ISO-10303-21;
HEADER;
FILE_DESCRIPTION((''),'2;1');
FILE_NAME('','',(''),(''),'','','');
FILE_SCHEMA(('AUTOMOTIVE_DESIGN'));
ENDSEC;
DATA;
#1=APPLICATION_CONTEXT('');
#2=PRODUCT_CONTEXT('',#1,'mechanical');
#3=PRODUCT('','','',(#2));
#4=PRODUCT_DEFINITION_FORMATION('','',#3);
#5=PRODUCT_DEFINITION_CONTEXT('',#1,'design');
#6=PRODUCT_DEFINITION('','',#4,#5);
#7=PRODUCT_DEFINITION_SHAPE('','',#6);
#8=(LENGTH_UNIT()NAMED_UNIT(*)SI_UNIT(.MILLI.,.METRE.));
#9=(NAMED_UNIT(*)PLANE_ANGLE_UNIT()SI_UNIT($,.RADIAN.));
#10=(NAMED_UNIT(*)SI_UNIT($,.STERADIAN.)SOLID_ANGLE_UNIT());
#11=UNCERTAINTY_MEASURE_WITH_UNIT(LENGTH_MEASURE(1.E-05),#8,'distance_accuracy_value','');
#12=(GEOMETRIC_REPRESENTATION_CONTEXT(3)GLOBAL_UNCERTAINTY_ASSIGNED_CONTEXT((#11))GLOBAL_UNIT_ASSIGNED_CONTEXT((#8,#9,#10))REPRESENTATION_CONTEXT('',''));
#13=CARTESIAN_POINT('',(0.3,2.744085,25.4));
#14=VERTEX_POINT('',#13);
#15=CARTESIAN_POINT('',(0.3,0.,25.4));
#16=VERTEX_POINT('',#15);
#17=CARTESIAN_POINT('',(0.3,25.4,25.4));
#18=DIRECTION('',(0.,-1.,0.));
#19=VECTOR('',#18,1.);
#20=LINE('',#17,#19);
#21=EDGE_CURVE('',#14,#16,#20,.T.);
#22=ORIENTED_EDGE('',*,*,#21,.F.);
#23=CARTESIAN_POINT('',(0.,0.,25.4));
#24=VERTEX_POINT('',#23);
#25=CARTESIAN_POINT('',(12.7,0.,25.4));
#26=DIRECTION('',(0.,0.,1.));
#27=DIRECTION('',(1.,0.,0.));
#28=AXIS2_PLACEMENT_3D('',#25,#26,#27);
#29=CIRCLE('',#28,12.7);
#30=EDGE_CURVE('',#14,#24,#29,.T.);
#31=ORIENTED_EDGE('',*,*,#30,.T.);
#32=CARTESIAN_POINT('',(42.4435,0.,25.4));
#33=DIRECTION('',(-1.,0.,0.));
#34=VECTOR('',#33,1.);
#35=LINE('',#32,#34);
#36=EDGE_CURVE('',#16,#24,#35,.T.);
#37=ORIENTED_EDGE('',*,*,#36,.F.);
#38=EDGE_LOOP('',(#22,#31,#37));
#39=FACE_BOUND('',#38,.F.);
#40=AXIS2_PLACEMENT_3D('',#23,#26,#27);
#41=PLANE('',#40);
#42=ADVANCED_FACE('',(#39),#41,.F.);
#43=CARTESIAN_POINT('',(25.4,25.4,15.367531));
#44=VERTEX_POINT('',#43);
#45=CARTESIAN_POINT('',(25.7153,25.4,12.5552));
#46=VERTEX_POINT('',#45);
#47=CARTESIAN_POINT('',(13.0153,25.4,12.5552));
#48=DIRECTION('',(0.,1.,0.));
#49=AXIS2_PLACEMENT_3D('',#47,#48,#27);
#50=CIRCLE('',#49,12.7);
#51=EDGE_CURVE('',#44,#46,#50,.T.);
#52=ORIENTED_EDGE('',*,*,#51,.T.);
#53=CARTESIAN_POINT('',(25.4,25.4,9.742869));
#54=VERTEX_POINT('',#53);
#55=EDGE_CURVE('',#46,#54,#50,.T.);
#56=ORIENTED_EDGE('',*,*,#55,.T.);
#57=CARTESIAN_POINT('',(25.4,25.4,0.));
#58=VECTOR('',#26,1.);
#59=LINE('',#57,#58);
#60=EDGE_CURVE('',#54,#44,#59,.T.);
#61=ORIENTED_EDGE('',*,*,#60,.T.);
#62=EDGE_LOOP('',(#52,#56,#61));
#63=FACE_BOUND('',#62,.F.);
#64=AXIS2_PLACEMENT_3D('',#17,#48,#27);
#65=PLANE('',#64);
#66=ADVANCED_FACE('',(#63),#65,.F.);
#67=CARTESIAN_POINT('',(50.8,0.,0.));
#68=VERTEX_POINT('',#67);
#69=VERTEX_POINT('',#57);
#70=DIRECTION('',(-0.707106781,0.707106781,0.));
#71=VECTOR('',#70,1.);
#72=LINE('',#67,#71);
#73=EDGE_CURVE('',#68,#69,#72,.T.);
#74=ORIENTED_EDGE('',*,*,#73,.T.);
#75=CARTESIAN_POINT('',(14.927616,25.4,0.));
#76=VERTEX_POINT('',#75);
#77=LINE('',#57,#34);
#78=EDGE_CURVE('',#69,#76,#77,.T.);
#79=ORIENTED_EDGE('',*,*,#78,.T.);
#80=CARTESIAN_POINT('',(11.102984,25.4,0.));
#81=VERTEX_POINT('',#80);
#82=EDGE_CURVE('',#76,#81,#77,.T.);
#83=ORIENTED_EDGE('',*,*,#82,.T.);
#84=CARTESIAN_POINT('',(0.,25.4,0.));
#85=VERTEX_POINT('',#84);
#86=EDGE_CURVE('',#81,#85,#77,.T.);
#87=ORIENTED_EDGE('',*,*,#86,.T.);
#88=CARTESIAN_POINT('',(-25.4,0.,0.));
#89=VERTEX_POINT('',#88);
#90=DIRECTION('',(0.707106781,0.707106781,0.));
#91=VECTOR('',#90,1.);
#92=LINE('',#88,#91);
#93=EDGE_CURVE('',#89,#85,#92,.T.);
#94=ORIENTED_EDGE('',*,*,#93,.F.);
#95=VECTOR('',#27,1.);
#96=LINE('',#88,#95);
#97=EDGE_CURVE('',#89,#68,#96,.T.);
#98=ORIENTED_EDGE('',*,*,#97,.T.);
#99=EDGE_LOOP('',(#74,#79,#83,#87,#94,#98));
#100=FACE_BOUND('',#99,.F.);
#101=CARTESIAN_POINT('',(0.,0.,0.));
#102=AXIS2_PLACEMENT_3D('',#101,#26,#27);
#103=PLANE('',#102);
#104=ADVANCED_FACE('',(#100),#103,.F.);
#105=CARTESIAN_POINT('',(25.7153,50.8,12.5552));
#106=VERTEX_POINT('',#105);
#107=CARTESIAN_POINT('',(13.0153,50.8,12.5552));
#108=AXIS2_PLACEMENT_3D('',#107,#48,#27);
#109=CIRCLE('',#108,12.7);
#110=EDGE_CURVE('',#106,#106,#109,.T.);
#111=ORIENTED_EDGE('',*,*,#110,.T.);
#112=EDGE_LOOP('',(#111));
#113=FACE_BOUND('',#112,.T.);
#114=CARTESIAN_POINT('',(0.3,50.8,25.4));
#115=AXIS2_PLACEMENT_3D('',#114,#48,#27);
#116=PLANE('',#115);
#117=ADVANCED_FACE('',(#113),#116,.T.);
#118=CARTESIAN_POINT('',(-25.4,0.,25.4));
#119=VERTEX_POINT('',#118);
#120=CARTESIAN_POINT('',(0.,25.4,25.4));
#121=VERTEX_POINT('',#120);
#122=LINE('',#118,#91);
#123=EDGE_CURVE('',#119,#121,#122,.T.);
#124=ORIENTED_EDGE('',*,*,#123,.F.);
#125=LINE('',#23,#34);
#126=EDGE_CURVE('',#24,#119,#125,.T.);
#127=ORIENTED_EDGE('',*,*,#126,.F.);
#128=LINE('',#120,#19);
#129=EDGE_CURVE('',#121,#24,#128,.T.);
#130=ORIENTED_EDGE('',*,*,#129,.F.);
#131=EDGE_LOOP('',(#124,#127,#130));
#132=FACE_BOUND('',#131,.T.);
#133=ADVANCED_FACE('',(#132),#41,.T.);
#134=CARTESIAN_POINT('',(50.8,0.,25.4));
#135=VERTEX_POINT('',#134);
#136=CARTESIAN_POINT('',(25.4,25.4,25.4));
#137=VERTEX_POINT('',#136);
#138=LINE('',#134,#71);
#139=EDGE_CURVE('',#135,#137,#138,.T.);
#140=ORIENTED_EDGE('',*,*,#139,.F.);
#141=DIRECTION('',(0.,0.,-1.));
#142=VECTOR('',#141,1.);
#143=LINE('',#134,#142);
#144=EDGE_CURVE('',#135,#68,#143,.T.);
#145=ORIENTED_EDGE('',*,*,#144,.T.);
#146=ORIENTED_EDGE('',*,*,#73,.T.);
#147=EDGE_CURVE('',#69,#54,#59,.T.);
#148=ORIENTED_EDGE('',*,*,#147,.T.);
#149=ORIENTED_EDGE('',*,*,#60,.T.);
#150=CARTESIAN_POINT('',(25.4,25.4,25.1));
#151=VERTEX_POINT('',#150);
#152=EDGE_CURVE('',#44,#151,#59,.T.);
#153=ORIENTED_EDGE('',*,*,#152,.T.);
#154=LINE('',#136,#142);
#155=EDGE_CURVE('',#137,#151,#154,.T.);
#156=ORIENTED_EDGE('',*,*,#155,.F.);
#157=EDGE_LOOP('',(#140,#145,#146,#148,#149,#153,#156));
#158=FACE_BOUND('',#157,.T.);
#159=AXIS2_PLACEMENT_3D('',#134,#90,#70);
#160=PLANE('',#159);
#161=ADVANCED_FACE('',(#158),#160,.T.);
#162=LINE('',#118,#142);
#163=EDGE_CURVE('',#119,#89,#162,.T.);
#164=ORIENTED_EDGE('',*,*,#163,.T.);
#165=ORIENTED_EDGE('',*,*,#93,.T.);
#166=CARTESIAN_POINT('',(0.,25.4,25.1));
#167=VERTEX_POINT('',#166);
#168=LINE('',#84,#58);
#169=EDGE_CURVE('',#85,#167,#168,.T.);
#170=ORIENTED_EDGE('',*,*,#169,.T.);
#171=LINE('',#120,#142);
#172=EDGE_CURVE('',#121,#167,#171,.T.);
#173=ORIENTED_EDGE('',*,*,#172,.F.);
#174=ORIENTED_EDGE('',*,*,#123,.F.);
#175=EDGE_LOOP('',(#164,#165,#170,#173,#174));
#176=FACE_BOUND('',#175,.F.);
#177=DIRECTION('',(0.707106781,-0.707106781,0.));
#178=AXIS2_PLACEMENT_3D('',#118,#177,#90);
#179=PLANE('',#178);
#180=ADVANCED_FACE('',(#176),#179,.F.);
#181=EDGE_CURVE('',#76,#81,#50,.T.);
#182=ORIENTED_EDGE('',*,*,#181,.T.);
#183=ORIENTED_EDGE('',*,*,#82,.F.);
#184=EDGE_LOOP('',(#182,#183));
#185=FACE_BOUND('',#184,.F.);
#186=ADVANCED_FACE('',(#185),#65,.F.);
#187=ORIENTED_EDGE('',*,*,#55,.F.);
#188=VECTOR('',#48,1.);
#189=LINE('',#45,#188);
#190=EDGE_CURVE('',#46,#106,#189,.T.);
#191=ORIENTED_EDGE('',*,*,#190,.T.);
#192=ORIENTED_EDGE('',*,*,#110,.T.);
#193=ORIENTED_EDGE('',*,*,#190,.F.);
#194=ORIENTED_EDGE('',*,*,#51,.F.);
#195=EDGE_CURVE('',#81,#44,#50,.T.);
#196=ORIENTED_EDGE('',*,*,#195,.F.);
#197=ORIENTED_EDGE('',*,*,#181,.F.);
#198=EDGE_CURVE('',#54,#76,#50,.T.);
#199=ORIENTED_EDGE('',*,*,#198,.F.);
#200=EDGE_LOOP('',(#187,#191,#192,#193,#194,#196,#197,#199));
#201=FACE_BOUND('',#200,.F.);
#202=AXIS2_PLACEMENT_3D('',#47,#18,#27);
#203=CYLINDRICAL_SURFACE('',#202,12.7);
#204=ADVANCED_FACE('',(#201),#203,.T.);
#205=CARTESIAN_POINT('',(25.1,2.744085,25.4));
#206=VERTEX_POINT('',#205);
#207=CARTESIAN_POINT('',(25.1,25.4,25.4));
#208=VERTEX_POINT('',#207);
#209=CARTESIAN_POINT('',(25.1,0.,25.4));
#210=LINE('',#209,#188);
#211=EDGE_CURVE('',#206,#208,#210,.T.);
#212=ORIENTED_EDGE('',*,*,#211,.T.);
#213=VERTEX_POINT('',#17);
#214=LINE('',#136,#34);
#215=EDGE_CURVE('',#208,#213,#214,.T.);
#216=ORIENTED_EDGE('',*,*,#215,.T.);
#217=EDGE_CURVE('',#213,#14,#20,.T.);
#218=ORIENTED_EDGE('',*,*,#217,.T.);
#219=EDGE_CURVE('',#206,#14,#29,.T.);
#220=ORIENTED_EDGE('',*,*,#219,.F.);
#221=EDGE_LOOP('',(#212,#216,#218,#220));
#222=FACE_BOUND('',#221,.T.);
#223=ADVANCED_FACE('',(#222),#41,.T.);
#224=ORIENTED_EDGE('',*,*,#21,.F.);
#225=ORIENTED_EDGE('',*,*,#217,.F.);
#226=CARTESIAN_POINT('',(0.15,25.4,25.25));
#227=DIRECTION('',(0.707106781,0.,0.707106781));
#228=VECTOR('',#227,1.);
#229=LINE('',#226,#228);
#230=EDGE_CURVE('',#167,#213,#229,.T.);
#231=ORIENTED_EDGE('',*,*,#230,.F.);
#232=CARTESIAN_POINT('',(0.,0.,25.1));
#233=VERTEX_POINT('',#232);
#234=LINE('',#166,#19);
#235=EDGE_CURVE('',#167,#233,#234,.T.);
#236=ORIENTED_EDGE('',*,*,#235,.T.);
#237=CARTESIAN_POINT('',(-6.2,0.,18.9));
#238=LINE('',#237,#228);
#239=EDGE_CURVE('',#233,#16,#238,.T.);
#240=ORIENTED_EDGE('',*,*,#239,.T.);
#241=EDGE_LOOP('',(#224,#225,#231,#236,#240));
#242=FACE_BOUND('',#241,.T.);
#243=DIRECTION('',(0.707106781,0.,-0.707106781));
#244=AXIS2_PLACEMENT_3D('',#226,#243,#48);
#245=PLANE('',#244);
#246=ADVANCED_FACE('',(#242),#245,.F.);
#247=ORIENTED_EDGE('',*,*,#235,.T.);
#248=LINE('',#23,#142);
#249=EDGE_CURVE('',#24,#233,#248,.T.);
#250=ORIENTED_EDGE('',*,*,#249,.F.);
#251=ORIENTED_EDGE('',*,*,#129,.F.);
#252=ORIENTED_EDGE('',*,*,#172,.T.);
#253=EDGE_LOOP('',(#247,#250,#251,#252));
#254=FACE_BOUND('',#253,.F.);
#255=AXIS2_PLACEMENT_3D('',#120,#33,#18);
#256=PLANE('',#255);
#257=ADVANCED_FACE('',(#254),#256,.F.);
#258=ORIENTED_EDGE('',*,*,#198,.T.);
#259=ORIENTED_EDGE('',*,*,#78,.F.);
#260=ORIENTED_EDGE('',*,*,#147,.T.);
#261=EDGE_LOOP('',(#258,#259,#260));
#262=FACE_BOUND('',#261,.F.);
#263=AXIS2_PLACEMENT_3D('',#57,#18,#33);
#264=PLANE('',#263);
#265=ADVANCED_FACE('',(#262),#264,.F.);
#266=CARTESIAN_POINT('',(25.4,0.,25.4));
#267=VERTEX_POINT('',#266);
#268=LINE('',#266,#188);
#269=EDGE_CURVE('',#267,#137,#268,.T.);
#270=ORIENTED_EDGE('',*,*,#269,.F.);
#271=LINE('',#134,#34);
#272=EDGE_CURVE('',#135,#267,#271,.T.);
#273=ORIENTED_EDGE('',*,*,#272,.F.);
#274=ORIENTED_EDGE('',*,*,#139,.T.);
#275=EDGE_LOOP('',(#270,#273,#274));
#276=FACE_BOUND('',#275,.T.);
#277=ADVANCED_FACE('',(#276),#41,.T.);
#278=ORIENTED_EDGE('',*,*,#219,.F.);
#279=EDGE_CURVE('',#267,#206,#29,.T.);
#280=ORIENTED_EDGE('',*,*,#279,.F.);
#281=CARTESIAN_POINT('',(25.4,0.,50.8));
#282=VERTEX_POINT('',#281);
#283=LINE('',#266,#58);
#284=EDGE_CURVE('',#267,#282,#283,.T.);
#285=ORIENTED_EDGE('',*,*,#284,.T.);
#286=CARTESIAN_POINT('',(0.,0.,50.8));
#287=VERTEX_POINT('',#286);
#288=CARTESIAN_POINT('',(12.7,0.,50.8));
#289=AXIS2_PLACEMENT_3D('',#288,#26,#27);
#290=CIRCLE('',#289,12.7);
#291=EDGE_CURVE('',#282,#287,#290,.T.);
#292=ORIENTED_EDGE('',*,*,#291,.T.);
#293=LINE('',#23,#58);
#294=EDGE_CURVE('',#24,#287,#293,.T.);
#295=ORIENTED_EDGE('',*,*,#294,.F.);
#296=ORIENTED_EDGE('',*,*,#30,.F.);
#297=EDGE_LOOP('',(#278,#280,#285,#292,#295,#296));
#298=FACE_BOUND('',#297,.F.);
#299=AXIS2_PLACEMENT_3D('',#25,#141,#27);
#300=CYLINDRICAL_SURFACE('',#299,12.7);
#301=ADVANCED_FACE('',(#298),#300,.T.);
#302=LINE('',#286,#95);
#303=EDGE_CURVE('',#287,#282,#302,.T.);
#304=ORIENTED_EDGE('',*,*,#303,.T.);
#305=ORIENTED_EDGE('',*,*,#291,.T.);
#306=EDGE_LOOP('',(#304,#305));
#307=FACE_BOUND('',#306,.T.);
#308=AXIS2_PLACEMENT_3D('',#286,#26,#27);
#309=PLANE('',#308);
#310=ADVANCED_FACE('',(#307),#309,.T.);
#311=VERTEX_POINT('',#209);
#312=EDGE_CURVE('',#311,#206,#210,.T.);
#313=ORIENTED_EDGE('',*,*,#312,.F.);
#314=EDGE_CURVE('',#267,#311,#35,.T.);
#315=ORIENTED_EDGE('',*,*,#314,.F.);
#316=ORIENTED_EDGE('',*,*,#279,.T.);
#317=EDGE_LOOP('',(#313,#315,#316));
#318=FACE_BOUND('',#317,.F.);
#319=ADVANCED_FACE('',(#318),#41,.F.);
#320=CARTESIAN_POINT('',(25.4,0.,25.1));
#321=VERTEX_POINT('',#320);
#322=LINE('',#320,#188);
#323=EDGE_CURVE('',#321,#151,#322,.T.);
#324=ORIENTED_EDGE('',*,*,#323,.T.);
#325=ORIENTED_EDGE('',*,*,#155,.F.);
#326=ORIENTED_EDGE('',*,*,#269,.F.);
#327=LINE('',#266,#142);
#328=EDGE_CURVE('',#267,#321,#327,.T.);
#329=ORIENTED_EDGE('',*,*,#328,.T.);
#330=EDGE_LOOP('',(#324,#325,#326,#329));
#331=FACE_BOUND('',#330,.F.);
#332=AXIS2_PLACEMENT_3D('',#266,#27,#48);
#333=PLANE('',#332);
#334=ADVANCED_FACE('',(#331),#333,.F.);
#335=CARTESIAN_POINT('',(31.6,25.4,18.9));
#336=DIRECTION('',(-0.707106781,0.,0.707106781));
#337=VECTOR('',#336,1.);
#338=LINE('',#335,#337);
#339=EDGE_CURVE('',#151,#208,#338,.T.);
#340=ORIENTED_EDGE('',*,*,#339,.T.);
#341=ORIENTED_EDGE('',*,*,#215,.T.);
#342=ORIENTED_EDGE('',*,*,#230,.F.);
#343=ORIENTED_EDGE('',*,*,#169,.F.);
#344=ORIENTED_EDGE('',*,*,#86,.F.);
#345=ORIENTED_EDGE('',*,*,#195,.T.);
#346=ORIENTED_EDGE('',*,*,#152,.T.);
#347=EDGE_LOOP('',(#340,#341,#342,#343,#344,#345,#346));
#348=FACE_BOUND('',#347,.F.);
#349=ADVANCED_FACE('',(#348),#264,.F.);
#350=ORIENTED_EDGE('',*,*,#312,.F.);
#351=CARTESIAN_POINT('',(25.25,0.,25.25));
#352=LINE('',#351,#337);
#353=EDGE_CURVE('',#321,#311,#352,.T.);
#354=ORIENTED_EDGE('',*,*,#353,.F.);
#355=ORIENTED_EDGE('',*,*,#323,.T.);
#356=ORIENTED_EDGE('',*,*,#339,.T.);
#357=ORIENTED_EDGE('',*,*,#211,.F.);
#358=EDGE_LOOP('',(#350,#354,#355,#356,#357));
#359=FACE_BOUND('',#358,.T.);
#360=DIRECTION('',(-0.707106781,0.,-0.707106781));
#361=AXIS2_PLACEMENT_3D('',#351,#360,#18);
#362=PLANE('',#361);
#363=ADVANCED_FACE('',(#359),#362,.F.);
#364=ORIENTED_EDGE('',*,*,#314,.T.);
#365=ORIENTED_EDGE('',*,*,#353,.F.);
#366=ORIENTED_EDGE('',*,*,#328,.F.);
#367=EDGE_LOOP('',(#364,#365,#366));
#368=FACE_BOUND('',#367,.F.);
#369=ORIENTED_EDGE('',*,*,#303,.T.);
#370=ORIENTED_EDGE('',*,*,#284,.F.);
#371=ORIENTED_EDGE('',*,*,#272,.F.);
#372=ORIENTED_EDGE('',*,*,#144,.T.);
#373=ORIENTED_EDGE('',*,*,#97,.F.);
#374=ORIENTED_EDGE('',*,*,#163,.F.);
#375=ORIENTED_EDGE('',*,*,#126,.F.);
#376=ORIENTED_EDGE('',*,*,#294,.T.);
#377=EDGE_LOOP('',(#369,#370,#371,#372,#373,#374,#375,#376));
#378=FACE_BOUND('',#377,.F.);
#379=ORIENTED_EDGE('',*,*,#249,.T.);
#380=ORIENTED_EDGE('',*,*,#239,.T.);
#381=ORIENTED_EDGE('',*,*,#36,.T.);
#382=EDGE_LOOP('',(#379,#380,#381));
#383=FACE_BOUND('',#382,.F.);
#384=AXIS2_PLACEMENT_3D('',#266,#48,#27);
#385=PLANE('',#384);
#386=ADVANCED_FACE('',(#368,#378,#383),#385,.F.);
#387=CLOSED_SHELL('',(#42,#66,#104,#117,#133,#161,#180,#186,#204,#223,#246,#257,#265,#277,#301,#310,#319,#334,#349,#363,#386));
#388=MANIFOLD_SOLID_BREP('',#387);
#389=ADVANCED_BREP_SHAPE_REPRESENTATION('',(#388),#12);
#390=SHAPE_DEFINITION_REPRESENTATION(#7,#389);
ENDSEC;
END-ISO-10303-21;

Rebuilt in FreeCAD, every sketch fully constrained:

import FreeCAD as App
import Part
import Sketcher
from FreeCAD import Vector
Q = App.Units.Quantity


def edges_at(feature, points):
    """Names of the edges that pass closest to the given points."""
    edges = feature.Shape.Edges
    near = lambda p: min(range(len(edges)), key=lambda i: edges[i].distToShape(Part.Vertex(*p))[0])
    return sorted({f"Edge{near(p) + 1}" for p in points})


def add_polygon(sketch, points):
    """Adds a closed chain of lines whose ends are joined by coincident constraints."""
    first, n = sketch.GeometryCount, len(points)
    for a, b in zip(points, points[1:] + points[:1]):
        sketch.addGeometry(Part.LineSegment(App.Vector(*a, 0), App.Vector(*b, 0)), False)
    for i in range(n):
        sketch.addConstraint(Sketcher.Constraint("Coincident", first + i, 2, first + (i + 1) % n, 1))

doc = App.newDocument("Part")
body = doc.addObject("PartDesign::Body", "Body")

# Sketch on XY plane
sketch1 = doc.addObject("Sketcher::SketchObject", "Sketch")
body.addObject(sketch1)
sketch1.AttachmentSupport = (doc.XY_Plane, [""])
sketch1.MapMode = "FlatFace"
add_polygon(sketch1, [(0, 25), (0, 0), (25, 0), (25, 25)])  # lines 0-3
sketch1.addConstraint([
    Sketcher.Constraint("Vertical", 0),
    Sketcher.Constraint("Horizontal", 1),
    Sketcher.Constraint("Vertical", 2),
    Sketcher.Constraint("Horizontal", 3),
    Sketcher.Constraint("Coincident", 0, 2, -1, 1),
    Sketcher.Constraint("Equal", 3, 0),
    Sketcher.Constraint("DistanceX", 1, 1, 1, 2, Q("1 in")),
])
pad1 = doc.addObject("PartDesign::Pad", "Pad")
body.addObject(pad1)
pad1.Profile = sketch1
pad1.Length = Q("1 in")
doc.recompute()

chamfer = doc.addObject("PartDesign::Chamfer", "Chamfer")
body.addObject(chamfer)
chamfer.Base = (pad1, edges_at(pad1, [(25.4, 12.7, 25.4), (0, 12.7, 25.4)]))
chamfer.Size = Q("0.011811 in")

# Sketch on XY plane
sketch2 = doc.addObject("Sketcher::SketchObject", "Sketch001")
body.addObject(sketch2)
sketch2.AttachmentSupport = (doc.XY_Plane, [""])
sketch2.MapMode = "FlatFace"
sketch2.AttachmentOffset = App.Placement(Vector(0, 0, 1 * 25.4), App.Rotation())
add_polygon(sketch2, [(-25, 0), (0, 0), (0, 25)])  # lines 0-2
sketch2.addConstraint([
    Sketcher.Constraint("Horizontal", 0),
    Sketcher.Constraint("Vertical", 1),
    Sketcher.Constraint("Coincident", 0, 2, -1, 1),
    Sketcher.Constraint("Equal", 0, 1),
    Sketcher.Constraint("DistanceX", 0, 1, 0, 2, Q("1 in")),
])
pad2 = doc.addObject("PartDesign::Pad", "Pad001")
body.addObject(pad2)
pad2.Profile = sketch2
pad2.Length = Q("1 in")
pad2.Reversed = True

# Sketch on XY plane
sketch3 = doc.addObject("Sketcher::SketchObject", "Sketch002")
body.addObject(sketch3)
sketch3.AttachmentSupport = (doc.XY_Plane, [""])
sketch3.MapMode = "FlatFace"
sketch3.AttachmentOffset = App.Placement(Vector(0, 0, 1 * 25.4), App.Rotation())
add_polygon(sketch3, [(25, 25), (25, 0), (51, 0)])  # lines 0-2
sketch3.addConstraint([
    Sketcher.Constraint("Vertical", 0),
    Sketcher.Constraint("Horizontal", 1),
    Sketcher.Constraint("PointOnObject", 0, 2, -1),
    Sketcher.Constraint("Equal", 1, 0),
    Sketcher.Constraint("DistanceX", 1, 1, 1, 2, Q("1 in")),
    Sketcher.Constraint("DistanceX", -1, 1, 0, 2, Q("1 in")),
])
pad3 = doc.addObject("PartDesign::Pad", "Pad002")
body.addObject(pad3)
pad3.Profile = sketch3
pad3.Length = Q("1 in")
pad3.Reversed = True

# Sketch on XY plane
sketch4 = doc.addObject("Sketcher::SketchObject", "Sketch003")
body.addObject(sketch4)
sketch4.AttachmentSupport = (doc.XY_Plane, [""])
sketch4.MapMode = "FlatFace"
sketch4.AttachmentOffset = App.Placement(Vector(0, 0, 1 * 25.4), App.Rotation())
sketch4.addGeometry(Part.Circle(Vector(13, 0, 0), Vector(0, 0, 1), 13), False)
sketch4.addConstraint([
    Sketcher.Constraint("PointOnObject", 0, 3, -1),
    Sketcher.Constraint("Diameter", 0, Q("1 in")),
    Sketcher.Constraint("DistanceX", -1, 1, 0, 3, Q("0.5 in")),
])
pad4 = doc.addObject("PartDesign::Pad", "Pad003")
body.addObject(pad4)
pad4.Profile = sketch4
pad4.Length = Q("1 in")

# Sketch on XY plane
sketch5 = doc.addObject("Sketcher::SketchObject", "Sketch004")
body.addObject(sketch5)
sketch5.AttachmentSupport = (doc.XY_Plane, [""])
sketch5.MapMode = "FlatFace"
sketch5.AttachmentOffset = App.Placement(Vector(0, 0, 1 * 25.4), App.Rotation())
add_polygon(sketch5, [(42, 0), (0, 0), (0, -16), (42, -16)])  # lines 0-3
sketch5.addConstraint([
    Sketcher.Constraint("Horizontal", 0),
    Sketcher.Constraint("Vertical", 1),
    Sketcher.Constraint("Horizontal", 2),
    Sketcher.Constraint("Vertical", 3),
    Sketcher.Constraint("Coincident", 0, 2, -1, 1),
    Sketcher.Constraint("DistanceX", 0, 2, 0, 1, Q("1.671 in")),
    Sketcher.Constraint("DistanceY", 1, 2, 1, 1, Q("0.6445 in")),
])
pocket1 = doc.addObject("PartDesign::Pocket", "Pocket")
body.addObject(pocket1)
pocket1.Profile = sketch5
pocket1.Length = Q("1 in")
pocket1.Reversed = True

# Sketch on XZ plane
sketch6 = doc.addObject("Sketcher::SketchObject", "Sketch005")
body.addObject(sketch6)
sketch6.AttachmentSupport = (doc.XZ_Plane, [""])
sketch6.MapMode = "FlatFace"
sketch6.AttachmentOffset = App.Placement(Vector(0, 0, -1 * 25.4), App.Rotation())
sketch6.addGeometry(Part.Circle(Vector(13, 13, 0), Vector(0, 0, 1), 13), False)
sketch6.addConstraint([
    Sketcher.Constraint("Diameter", 0, Q("1 in")),
    Sketcher.Constraint("DistanceY", -1, 1, 0, 3, Q("0.4943 in")),
    Sketcher.Constraint("DistanceX", -1, 1, 0, 3, 13.0153),
])
pad5 = doc.addObject("PartDesign::Pad", "Pad004")
body.addObject(pad5)
pad5.Profile = sketch6
pad5.Length = Q("1 in")
pad5.Reversed = True

doc.recompute()
